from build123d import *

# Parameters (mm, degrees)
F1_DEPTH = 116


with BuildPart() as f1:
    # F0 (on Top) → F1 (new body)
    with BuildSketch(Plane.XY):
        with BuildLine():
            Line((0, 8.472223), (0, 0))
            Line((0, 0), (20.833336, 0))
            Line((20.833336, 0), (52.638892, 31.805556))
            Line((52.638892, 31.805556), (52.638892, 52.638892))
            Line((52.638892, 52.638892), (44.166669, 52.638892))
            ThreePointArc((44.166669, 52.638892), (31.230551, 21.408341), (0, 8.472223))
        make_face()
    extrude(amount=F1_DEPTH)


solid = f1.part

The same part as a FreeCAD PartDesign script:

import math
import FreeCAD as App
import Part
import Sketcher

doc = App.newDocument("Part")
params = doc.addObject("Spreadsheet::Sheet", "Params")
for row, (alias, value) in enumerate([
    ("pad1_length", "116 mm"),
], start=1):
    params.set(f"A{row}", alias)
    params.set(f"B{row}", "=" + value)
    params.setAlias(f"B{row}", alias)

body = doc.addObject("PartDesign::Body", "Body")

# Sketch on XY plane
sketch1 = body.newObject("Sketcher::SketchObject", "Sketch")
sketch1.AttachmentSupport = (doc.getObject("XY_Plane"), [""])
sketch1.MapMode = "FlatFace"
sketch1.addGeometry([
    Part.LineSegment(App.Vector(0, 8, 0), App.Vector(0, 0, 0)),  # 0
    Part.LineSegment(App.Vector(0, 0, 0), App.Vector(21, 0, 0)),  # 1
    Part.LineSegment(App.Vector(21, 0, 0), App.Vector(53, 32, 0)),  # 2
    Part.LineSegment(App.Vector(53, 32, 0), App.Vector(53, 53, 0)),  # 3
    Part.LineSegment(App.Vector(53, 53, 0), App.Vector(44, 53, 0)),  # 4
    Part.ArcOfCircle(Part.Circle(App.Vector(0, 53, 0), App.Vector(0, 0, 1), 44), math.radians(-90), math.radians(0)),  # 5
], False)
sketch1.addConstraint([
    Sketcher.Constraint("Coincident", 0, 2, 1, 1),
    Sketcher.Constraint("Coincident", 1, 2, 2, 1),
    Sketcher.Constraint("Coincident", 2, 2, 3, 1),
    Sketcher.Constraint("Coincident", 3, 2, 4, 1),
    Sketcher.Constraint("Coincident", 4, 2, 5, 2),
    Sketcher.Constraint("Coincident", 5, 1, 0, 1),
    Sketcher.Constraint("Vertical", 0),
    Sketcher.Constraint("Horizontal", 1),
    Sketcher.Constraint("Vertical", 3),
    Sketcher.Constraint("Horizontal", 4),
    Sketcher.Constraint("Coincident", 0, 2, -1, 1),
    Sketcher.Constraint("PointOnObject", 5, 3, -2),
    Sketcher.Constraint("Horizontal", 5, 3, 3, 2),
    Sketcher.Constraint("Equal", 4, 0),
    Sketcher.Constraint("Equal", 1, 3),
    Sketcher.Constraint("Radius", 5, 44.16667),
    Sketcher.Constraint("Distance", 2, 44.979849),
    Sketcher.Constraint("DistanceX", 1, 1, 1, 2, 20.833336),
])
pad1 = body.newObject("PartDesign::Pad", "Pad")
pad1.Profile = sketch1
pad1.setExpression("Length", "Params.pad1_length")

doc.recompute()
